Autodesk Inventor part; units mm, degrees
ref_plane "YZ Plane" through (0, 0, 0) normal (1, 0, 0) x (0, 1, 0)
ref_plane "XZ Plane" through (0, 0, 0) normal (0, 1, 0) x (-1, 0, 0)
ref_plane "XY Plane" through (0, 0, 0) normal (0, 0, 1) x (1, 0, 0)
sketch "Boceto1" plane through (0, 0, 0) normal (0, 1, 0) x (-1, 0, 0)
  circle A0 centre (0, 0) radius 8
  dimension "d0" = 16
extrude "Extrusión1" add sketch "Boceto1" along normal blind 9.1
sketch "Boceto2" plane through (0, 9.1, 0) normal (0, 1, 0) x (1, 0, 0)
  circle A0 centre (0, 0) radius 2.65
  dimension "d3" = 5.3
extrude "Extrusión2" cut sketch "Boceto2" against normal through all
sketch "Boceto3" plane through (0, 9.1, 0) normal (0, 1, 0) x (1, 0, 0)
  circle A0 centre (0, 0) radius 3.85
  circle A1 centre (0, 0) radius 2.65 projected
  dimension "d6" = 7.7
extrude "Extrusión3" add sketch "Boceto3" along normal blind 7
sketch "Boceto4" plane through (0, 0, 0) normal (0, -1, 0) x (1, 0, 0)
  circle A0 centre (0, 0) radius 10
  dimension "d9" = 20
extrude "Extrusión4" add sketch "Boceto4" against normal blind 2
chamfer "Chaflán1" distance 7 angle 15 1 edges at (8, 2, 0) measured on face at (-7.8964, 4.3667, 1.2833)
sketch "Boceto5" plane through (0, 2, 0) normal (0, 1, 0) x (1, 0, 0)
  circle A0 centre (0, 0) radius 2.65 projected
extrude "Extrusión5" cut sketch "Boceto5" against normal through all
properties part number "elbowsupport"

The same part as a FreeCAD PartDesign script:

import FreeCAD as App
import Part
import Sketcher
Q = App.Units.Quantity


def edges_at(feature, points):
    """Names of the edges that pass closest to the given points."""
    edges = feature.Shape.Edges
    near = lambda p: min(range(len(edges)), key=lambda i: edges[i].distToShape(Part.Vertex(*p))[0])
    return sorted({f"Edge{near(p) + 1}" for p in points})

doc = App.newDocument("Part")
params = doc.addObject("Spreadsheet::Sheet", "Params")
for row, (alias, value) in enumerate([
    ("sketch1_diameter", "16 mm"),
    ("pad1_length", "9.1 mm"),
    ("sketch2_diameter", "5.3 mm"),
    ("sketch3_diameter", "7.7 mm"),
    ("sketch3_diameter2", "5.3 mm"),
    ("pad2_length", "7 mm"),
    ("sketch4_diameter", "20 mm"),
    ("pad3_length", "2 mm"),
    ("chamfer_size", "7 mm"),
    ("sketch5_diameter", "5.3 mm"),
], start=1):
    params.set(f"A{row}", alias)
    params.set(f"B{row}", "=" + value)
    params.setAlias(f"B{row}", alias)

body = doc.addObject("PartDesign::Body", "Body")

# Sketch on XZ plane
sketch1 = body.newObject("Sketcher::SketchObject", "Sketch")
sketch1.AttachmentSupport = (doc.getObject("XZ_Plane"), [""])
sketch1.MapMode = "FlatFace"
sketch1.addGeometry(Part.Circle(App.Vector(0, 0, 0), App.Vector(0, 0, 1), 8), False)
sketch1.addConstraint(Sketcher.Constraint("Coincident", 0, 3, -1, 1))
sketch1.addConstraint(Sketcher.Constraint("Diameter", 0, Q("16 mm")))
sketch1.setExpression("Constraints[1]", "Params.sketch1_diameter")
pad1 = body.newObject("PartDesign::Pad", "Pad")
pad1.Profile = sketch1
pad1.setExpression("Length", "Params.pad1_length")
pad1.Reversed = True

# Sketch on XZ plane
sketch2 = body.newObject("Sketcher::SketchObject", "Sketch001")
sketch2.AttachmentSupport = (doc.getObject("XZ_Plane"), [""])
sketch2.MapMode = "FlatFace"
sketch2.AttachmentOffset = App.Placement(App.Vector(0, 0, -9.1), App.Rotation())
sketch2.addGeometry(Part.Circle(App.Vector(0, 0, 0), App.Vector(0, 0, 1), 2.6), False)
sketch2.addConstraint(Sketcher.Constraint("Coincident", 0, 3, -1, 1))
sketch2.addConstraint(Sketcher.Constraint("Diameter", 0, Q("5.3 mm")))
sketch2.setExpression("Constraints[1]", "Params.sketch2_diameter")
pocket1 = body.newObject("PartDesign::Pocket", "Pocket")
pocket1.Profile = sketch2
pocket1.Type = "ThroughAll"
pocket1.Reversed = True

# Sketch on XZ plane
sketch3 = body.newObject("Sketcher::SketchObject", "Sketch002")
sketch3.AttachmentSupport = (doc.getObject("XZ_Plane"), [""])
sketch3.MapMode = "FlatFace"
sketch3.AttachmentOffset = App.Placement(App.Vector(0, 0, -9.1), App.Rotation())
sketch3.addGeometry(Part.Circle(App.Vector(0, 0, 0), App.Vector(0, 0, 1), 3.9), False)
sketch3.addGeometry(Part.Circle(App.Vector(0, 0, 0), App.Vector(0, 0, 1), 2.6), False)
sketch3.addConstraint(Sketcher.Constraint("Coincident", 0, 3, -1, 1))
sketch3.addConstraint(Sketcher.Constraint("Coincident", 1, 3, -1, 1))
sketch3.addConstraint(Sketcher.Constraint("Diameter", 0, Q("7.7 mm")))
sketch3.addConstraint(Sketcher.Constraint("Diameter", 1, Q("5.3 mm")))
sketch3.setExpression("Constraints[2]", "Params.sketch3_diameter")
sketch3.setExpression("Constraints[3]", "Params.sketch3_diameter2")
pad2 = body.newObject("PartDesign::Pad", "Pad001")
pad2.Profile = sketch3
pad2.setExpression("Length", "Params.pad2_length")
pad2.Reversed = True

# Sketch on XZ plane
sketch4 = body.newObject("Sketcher::SketchObject", "Sketch003")
sketch4.AttachmentSupport = (doc.getObject("XZ_Plane"), [""])
sketch4.MapMode = "FlatFace"
sketch4.addGeometry(Part.Circle(App.Vector(0, 0, 0), App.Vector(0, 0, 1), 10), False)
sketch4.addConstraint(Sketcher.Constraint("Coincident", 0, 3, -1, 1))
sketch4.addConstraint(Sketcher.Constraint("Diameter", 0, Q("20 mm")))
sketch4.setExpression("Constraints[1]", "Params.sketch4_diameter")
pad3 = body.newObject("PartDesign::Pad", "Pad002")
pad3.Profile = sketch4
pad3.setExpression("Length", "Params.pad3_length")
pad3.Reversed = True
doc.recompute()

chamfer = body.newObject("PartDesign::Chamfer", "Chamfer")
chamfer.Base = (pad3, edges_at(pad3, [(8, 2, 0)]))
chamfer.ChamferType = "Distance and Angle"
chamfer.setExpression("Size", "Params.chamfer_size")
chamfer.Angle = 15
chamfer.FlipDirection = True

# Sketch on XZ plane
sketch5 = body.newObject("Sketcher::SketchObject", "Sketch004")
sketch5.AttachmentSupport = (doc.getObject("XZ_Plane"), [""])
sketch5.MapMode = "FlatFace"
sketch5.AttachmentOffset = App.Placement(App.Vector(0, 0, -2), App.Rotation())
sketch5.addGeometry(Part.Circle(App.Vector(0, 0, 0), App.Vector(0, 0, 1), 2.6), False)
sketch5.addConstraint(Sketcher.Constraint("Coincident", 0, 3, -1, 1))
sketch5.addConstraint(Sketcher.Constraint("Diameter", 0, Q("5.3 mm")))
sketch5.setExpression("Constraints[1]", "Params.sketch5_diameter")
pocket2 = body.newObject("PartDesign::Pocket", "Pocket001")
pocket2.Profile = sketch5
pocket2.Type = "ThroughAll"
pocket2.Reversed = True

doc.recompute()
